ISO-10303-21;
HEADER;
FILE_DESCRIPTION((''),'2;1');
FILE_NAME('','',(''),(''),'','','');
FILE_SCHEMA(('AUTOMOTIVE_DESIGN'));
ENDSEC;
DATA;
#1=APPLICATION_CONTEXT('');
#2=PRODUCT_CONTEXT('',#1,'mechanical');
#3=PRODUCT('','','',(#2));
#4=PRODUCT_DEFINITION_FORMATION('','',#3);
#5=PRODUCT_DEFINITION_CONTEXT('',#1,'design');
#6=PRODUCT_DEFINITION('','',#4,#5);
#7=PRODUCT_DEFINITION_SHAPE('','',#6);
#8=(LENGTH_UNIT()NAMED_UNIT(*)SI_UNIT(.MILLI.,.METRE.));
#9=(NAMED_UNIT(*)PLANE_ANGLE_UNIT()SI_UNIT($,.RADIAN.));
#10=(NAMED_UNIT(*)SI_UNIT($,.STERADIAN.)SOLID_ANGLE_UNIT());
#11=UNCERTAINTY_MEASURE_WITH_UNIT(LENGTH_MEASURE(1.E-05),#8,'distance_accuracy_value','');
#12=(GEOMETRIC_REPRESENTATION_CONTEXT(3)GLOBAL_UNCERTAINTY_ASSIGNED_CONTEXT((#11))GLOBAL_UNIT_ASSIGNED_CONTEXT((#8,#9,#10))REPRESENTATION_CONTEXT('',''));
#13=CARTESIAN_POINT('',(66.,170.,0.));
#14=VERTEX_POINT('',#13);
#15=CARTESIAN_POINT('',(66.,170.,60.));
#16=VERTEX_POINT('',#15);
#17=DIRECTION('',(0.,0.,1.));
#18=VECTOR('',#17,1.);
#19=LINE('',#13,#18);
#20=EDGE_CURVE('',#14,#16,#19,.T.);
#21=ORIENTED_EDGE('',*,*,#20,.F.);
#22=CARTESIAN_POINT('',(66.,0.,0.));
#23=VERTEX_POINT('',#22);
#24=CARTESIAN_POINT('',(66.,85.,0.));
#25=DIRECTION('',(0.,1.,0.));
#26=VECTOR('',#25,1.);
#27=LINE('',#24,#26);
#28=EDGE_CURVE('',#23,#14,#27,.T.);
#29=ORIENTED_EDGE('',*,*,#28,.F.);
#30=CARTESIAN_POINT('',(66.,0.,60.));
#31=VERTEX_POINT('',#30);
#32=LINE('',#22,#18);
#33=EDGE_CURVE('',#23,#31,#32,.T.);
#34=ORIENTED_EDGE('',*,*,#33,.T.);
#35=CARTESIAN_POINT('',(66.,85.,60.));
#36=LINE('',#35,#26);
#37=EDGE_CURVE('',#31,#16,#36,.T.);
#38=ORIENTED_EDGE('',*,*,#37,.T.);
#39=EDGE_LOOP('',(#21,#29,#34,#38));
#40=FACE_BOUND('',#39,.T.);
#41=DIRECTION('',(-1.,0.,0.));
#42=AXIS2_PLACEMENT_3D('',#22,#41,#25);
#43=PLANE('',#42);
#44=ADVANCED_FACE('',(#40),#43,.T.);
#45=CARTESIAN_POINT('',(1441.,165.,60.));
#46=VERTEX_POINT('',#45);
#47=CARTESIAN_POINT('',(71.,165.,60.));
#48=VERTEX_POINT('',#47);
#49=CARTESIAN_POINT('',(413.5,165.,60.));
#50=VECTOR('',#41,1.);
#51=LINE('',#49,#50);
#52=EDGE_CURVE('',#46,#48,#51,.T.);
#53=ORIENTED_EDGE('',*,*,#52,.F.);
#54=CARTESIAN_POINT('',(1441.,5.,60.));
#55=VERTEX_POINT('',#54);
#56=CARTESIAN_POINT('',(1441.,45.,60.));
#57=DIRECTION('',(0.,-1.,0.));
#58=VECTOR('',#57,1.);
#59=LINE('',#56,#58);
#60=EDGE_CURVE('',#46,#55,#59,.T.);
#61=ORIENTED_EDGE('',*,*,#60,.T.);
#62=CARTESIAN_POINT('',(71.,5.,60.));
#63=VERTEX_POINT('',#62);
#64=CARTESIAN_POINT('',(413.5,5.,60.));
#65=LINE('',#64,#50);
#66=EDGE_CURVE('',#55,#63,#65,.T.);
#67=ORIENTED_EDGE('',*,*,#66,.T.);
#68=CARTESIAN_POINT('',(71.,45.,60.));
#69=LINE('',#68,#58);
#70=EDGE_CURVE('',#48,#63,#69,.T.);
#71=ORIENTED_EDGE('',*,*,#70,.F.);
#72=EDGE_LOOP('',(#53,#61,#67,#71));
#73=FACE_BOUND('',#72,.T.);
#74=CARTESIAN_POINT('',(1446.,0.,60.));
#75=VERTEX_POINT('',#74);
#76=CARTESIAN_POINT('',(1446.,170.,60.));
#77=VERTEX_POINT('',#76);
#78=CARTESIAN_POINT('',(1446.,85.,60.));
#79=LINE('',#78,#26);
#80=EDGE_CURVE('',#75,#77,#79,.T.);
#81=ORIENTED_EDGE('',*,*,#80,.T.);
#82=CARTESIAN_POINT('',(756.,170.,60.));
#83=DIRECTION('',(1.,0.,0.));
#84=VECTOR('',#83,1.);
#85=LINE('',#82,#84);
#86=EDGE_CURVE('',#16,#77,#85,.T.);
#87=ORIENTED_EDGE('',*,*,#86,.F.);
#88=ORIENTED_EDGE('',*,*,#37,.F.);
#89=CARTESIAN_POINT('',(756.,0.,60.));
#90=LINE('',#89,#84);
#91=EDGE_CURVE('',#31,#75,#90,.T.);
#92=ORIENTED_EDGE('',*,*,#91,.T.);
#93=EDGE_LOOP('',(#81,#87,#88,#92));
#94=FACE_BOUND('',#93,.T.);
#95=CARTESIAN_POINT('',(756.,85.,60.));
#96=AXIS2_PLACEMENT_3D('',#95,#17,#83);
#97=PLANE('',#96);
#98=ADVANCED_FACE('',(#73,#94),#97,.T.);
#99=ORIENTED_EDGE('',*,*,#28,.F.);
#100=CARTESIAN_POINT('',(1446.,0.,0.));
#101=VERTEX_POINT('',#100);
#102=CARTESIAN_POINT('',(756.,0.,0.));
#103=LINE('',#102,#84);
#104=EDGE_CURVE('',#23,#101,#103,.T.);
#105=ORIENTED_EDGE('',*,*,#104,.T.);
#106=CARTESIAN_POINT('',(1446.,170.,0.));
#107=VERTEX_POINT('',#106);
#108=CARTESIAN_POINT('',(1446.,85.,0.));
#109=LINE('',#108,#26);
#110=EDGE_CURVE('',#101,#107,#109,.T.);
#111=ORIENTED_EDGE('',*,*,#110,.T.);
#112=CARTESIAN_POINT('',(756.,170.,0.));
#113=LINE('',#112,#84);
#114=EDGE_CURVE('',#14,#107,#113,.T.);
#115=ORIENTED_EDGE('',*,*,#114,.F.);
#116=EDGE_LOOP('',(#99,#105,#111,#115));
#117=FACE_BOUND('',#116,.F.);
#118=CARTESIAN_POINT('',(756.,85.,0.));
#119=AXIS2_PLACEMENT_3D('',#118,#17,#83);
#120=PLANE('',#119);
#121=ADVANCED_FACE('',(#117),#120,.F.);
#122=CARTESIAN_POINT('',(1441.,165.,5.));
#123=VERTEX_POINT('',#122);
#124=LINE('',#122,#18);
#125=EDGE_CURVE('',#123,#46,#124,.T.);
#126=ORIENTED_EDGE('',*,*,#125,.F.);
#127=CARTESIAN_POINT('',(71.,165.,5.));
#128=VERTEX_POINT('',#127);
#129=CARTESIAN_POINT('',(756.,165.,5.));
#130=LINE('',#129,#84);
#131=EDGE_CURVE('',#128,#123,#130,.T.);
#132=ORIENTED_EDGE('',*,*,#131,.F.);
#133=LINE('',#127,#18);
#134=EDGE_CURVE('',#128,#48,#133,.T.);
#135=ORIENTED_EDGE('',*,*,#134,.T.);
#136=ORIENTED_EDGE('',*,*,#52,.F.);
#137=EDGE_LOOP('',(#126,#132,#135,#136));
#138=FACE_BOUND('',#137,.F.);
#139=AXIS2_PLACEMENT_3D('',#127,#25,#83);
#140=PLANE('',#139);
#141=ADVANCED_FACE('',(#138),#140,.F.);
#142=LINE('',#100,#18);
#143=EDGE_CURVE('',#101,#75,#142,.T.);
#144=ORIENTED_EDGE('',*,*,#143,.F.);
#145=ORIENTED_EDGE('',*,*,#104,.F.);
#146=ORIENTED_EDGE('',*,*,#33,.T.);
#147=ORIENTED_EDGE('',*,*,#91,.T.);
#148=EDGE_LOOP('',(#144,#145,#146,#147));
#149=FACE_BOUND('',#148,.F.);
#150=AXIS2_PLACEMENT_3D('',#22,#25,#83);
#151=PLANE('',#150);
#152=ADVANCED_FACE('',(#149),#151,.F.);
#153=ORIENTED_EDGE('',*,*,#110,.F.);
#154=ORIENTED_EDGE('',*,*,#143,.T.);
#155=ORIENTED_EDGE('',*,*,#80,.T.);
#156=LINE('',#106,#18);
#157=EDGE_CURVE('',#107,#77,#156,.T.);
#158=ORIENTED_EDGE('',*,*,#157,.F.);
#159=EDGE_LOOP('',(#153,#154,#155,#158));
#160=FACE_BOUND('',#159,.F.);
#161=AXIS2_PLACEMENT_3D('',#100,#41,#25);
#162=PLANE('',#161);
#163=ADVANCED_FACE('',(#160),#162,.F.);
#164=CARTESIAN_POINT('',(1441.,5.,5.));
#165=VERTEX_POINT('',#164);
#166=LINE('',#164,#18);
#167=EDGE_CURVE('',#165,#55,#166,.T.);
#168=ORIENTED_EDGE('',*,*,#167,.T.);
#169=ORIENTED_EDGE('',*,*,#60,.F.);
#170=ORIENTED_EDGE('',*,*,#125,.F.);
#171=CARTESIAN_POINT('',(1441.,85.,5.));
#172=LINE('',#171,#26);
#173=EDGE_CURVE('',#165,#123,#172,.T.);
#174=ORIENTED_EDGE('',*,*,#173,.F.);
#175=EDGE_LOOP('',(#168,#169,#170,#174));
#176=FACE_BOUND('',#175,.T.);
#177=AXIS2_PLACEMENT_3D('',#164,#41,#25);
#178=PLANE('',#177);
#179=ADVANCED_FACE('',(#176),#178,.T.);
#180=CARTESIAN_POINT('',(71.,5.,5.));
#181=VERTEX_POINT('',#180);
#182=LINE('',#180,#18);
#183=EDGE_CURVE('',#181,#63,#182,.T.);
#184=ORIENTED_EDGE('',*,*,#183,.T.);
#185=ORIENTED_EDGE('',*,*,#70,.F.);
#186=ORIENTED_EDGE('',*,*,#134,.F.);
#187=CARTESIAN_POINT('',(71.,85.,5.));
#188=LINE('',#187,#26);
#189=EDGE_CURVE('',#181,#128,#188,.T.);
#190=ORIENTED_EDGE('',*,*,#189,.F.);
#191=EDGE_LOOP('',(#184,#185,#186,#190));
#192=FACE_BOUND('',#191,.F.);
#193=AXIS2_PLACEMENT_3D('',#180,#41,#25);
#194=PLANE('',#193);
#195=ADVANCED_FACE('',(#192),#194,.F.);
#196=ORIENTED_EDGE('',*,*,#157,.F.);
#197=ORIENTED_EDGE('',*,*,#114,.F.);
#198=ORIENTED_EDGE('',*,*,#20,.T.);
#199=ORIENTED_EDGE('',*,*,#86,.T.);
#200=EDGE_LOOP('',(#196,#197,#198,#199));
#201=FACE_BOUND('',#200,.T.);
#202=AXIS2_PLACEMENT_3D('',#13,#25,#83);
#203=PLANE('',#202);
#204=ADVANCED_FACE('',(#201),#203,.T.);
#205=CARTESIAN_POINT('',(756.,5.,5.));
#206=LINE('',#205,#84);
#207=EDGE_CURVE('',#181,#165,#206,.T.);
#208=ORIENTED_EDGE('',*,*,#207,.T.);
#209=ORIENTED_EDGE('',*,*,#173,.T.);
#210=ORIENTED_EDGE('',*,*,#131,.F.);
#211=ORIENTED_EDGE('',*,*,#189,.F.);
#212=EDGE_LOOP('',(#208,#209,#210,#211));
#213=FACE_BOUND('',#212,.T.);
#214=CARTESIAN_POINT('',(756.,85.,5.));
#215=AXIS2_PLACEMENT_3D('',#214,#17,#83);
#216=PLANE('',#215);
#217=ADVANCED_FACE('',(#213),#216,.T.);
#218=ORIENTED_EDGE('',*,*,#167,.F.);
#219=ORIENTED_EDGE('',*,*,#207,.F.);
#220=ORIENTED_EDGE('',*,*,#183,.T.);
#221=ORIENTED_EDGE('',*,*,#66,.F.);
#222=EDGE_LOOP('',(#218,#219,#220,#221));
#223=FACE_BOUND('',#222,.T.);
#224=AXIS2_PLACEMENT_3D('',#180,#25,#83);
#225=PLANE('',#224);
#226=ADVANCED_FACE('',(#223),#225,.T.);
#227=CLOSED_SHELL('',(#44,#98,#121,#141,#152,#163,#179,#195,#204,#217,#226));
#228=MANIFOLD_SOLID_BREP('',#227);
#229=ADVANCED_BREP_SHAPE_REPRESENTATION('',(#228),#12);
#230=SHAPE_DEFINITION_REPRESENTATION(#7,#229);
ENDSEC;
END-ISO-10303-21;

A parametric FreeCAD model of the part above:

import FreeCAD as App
import Part
import Sketcher

V = App.Vector
Q = App.Units.Quantity

doc = App.newDocument("Part")
params = doc.addObject("Spreadsheet::Sheet", "Params")
for row, (alias, value) in enumerate([
    ("sketch1_width", "1370 mm"),
    ("sketch1_height", "160 mm"),
    ("pad1_length", "60 mm"),
    ("sketch2_width", "1380 mm"),
    ("sketch2_height", "170 mm"),
    ("pad2_length", "60 mm"),
], start=1):
    params.set(f"A{row}", alias)
    params.set(f"B{row}", "=" + value)
    params.setAlias(f"B{row}", alias)

body = doc.addObject("PartDesign::Body", "Body")

# Sketch on XY plane
sketch1 = body.newObject("Sketcher::SketchObject", "Sketch")
sketch1.AttachmentSupport = (doc.getObject("XY_Plane"), [""])
sketch1.MapMode = "FlatFace"
sketch1.AttachmentOffset = App.Placement(V(0, 0, 5), App.Rotation())
sketch1.addGeometry([
    Part.LineSegment(V(5, 165, 0), V(5, 5, 0)),
    Part.LineSegment(V(5, 5, 0), V(1375, 5, 0)),
    Part.LineSegment(V(1375, 5, 0), V(1375, 165, 0)),
    Part.LineSegment(V(1375, 165, 0), V(5, 165, 0)),
], False)
sketch1.addConstraint([
    Sketcher.Constraint("Coincident", 0, 2, 1, 1),
    Sketcher.Constraint("Coincident", 1, 2, 2, 1),
    Sketcher.Constraint("Coincident", 2, 2, 3, 1),
    Sketcher.Constraint("Coincident", 3, 2, 0, 1),
    Sketcher.Constraint("Vertical", 0),
    Sketcher.Constraint("Horizontal", 1),
    Sketcher.Constraint("Vertical", 2),
    Sketcher.Constraint("Horizontal", 3),
    Sketcher.Constraint("DistanceX", 1, 1, 1, 2, Q("1370 mm")),
    Sketcher.Constraint("DistanceY", 0, 2, 0, 1, Q("160 mm")),
    Sketcher.Constraint("DistanceX", -1, 1, 0, 2, Q("5 mm")),
    Sketcher.Constraint("DistanceY", -1, 1, 0, 2, Q("5 mm")),
])
sketch1.setExpression("Constraints[8]", "Params.sketch1_width")
sketch1.setExpression("Constraints[9]", "Params.sketch1_height")
pad1 = body.newObject("PartDesign::Pad", "Pad")
pad1.Profile = sketch1
pad1.setExpression("Length", "Params.pad1_length")
body2 = doc.addObject("PartDesign::Body", "Body001")

# Sketch on XY plane
sketch2 = body2.newObject("Sketcher::SketchObject", "Sketch001")
sketch2.AttachmentSupport = (doc.getObject("XY_Plane001"), [""])
sketch2.MapMode = "FlatFace"
sketch2.addGeometry([
    Part.LineSegment(V(0, 170, 0), V(0, 0, 0)),
    Part.LineSegment(V(0, 0, 0), V(1380, 0, 0)),
    Part.LineSegment(V(1380, 0, 0), V(1380, 170, 0)),
    Part.LineSegment(V(1380, 170, 0), V(0, 170, 0)),
], False)
sketch2.addConstraint([
    Sketcher.Constraint("Coincident", 0, 2, 1, 1),
    Sketcher.Constraint("Coincident", 1, 2, 2, 1),
    Sketcher.Constraint("Coincident", 2, 2, 3, 1),
    Sketcher.Constraint("Coincident", 3, 2, 0, 1),
    Sketcher.Constraint("Vertical", 0),
    Sketcher.Constraint("Horizontal", 1),
    Sketcher.Constraint("Vertical", 2),
    Sketcher.Constraint("Horizontal", 3),
    Sketcher.Constraint("Coincident", 0, 2, -1, 1),
    Sketcher.Constraint("DistanceX", 1, 1, 1, 2, Q("1380 mm")),
    Sketcher.Constraint("DistanceY", 0, 2, 0, 1, Q("170 mm")),
])
sketch2.setExpression("Constraints[9]", "Params.sketch2_width")
sketch2.setExpression("Constraints[10]", "Params.sketch2_height")
pad2 = body2.newObject("PartDesign::Pad", "Pad001")
pad2.Profile = sketch2
pad2.setExpression("Length", "Params.pad2_length")
doc.recompute()

boolean = body2.newObject("PartDesign::Boolean", "Boolean")
boolean.Type = "Cut"
boolean.addObjects([body])
body3 = doc.addObject("PartDesign::Body", "Body002")
doc.recompute()

body2.Placement = App.Placement(V(66, 0, 0), App.Rotation(V(0, 0, 1), 0))
boolean2 = body3.newObject("PartDesign::Boolean", "Boolean001")
boolean2.Type = "Fuse"
boolean2.addObjects([body2])

doc.recompute()
